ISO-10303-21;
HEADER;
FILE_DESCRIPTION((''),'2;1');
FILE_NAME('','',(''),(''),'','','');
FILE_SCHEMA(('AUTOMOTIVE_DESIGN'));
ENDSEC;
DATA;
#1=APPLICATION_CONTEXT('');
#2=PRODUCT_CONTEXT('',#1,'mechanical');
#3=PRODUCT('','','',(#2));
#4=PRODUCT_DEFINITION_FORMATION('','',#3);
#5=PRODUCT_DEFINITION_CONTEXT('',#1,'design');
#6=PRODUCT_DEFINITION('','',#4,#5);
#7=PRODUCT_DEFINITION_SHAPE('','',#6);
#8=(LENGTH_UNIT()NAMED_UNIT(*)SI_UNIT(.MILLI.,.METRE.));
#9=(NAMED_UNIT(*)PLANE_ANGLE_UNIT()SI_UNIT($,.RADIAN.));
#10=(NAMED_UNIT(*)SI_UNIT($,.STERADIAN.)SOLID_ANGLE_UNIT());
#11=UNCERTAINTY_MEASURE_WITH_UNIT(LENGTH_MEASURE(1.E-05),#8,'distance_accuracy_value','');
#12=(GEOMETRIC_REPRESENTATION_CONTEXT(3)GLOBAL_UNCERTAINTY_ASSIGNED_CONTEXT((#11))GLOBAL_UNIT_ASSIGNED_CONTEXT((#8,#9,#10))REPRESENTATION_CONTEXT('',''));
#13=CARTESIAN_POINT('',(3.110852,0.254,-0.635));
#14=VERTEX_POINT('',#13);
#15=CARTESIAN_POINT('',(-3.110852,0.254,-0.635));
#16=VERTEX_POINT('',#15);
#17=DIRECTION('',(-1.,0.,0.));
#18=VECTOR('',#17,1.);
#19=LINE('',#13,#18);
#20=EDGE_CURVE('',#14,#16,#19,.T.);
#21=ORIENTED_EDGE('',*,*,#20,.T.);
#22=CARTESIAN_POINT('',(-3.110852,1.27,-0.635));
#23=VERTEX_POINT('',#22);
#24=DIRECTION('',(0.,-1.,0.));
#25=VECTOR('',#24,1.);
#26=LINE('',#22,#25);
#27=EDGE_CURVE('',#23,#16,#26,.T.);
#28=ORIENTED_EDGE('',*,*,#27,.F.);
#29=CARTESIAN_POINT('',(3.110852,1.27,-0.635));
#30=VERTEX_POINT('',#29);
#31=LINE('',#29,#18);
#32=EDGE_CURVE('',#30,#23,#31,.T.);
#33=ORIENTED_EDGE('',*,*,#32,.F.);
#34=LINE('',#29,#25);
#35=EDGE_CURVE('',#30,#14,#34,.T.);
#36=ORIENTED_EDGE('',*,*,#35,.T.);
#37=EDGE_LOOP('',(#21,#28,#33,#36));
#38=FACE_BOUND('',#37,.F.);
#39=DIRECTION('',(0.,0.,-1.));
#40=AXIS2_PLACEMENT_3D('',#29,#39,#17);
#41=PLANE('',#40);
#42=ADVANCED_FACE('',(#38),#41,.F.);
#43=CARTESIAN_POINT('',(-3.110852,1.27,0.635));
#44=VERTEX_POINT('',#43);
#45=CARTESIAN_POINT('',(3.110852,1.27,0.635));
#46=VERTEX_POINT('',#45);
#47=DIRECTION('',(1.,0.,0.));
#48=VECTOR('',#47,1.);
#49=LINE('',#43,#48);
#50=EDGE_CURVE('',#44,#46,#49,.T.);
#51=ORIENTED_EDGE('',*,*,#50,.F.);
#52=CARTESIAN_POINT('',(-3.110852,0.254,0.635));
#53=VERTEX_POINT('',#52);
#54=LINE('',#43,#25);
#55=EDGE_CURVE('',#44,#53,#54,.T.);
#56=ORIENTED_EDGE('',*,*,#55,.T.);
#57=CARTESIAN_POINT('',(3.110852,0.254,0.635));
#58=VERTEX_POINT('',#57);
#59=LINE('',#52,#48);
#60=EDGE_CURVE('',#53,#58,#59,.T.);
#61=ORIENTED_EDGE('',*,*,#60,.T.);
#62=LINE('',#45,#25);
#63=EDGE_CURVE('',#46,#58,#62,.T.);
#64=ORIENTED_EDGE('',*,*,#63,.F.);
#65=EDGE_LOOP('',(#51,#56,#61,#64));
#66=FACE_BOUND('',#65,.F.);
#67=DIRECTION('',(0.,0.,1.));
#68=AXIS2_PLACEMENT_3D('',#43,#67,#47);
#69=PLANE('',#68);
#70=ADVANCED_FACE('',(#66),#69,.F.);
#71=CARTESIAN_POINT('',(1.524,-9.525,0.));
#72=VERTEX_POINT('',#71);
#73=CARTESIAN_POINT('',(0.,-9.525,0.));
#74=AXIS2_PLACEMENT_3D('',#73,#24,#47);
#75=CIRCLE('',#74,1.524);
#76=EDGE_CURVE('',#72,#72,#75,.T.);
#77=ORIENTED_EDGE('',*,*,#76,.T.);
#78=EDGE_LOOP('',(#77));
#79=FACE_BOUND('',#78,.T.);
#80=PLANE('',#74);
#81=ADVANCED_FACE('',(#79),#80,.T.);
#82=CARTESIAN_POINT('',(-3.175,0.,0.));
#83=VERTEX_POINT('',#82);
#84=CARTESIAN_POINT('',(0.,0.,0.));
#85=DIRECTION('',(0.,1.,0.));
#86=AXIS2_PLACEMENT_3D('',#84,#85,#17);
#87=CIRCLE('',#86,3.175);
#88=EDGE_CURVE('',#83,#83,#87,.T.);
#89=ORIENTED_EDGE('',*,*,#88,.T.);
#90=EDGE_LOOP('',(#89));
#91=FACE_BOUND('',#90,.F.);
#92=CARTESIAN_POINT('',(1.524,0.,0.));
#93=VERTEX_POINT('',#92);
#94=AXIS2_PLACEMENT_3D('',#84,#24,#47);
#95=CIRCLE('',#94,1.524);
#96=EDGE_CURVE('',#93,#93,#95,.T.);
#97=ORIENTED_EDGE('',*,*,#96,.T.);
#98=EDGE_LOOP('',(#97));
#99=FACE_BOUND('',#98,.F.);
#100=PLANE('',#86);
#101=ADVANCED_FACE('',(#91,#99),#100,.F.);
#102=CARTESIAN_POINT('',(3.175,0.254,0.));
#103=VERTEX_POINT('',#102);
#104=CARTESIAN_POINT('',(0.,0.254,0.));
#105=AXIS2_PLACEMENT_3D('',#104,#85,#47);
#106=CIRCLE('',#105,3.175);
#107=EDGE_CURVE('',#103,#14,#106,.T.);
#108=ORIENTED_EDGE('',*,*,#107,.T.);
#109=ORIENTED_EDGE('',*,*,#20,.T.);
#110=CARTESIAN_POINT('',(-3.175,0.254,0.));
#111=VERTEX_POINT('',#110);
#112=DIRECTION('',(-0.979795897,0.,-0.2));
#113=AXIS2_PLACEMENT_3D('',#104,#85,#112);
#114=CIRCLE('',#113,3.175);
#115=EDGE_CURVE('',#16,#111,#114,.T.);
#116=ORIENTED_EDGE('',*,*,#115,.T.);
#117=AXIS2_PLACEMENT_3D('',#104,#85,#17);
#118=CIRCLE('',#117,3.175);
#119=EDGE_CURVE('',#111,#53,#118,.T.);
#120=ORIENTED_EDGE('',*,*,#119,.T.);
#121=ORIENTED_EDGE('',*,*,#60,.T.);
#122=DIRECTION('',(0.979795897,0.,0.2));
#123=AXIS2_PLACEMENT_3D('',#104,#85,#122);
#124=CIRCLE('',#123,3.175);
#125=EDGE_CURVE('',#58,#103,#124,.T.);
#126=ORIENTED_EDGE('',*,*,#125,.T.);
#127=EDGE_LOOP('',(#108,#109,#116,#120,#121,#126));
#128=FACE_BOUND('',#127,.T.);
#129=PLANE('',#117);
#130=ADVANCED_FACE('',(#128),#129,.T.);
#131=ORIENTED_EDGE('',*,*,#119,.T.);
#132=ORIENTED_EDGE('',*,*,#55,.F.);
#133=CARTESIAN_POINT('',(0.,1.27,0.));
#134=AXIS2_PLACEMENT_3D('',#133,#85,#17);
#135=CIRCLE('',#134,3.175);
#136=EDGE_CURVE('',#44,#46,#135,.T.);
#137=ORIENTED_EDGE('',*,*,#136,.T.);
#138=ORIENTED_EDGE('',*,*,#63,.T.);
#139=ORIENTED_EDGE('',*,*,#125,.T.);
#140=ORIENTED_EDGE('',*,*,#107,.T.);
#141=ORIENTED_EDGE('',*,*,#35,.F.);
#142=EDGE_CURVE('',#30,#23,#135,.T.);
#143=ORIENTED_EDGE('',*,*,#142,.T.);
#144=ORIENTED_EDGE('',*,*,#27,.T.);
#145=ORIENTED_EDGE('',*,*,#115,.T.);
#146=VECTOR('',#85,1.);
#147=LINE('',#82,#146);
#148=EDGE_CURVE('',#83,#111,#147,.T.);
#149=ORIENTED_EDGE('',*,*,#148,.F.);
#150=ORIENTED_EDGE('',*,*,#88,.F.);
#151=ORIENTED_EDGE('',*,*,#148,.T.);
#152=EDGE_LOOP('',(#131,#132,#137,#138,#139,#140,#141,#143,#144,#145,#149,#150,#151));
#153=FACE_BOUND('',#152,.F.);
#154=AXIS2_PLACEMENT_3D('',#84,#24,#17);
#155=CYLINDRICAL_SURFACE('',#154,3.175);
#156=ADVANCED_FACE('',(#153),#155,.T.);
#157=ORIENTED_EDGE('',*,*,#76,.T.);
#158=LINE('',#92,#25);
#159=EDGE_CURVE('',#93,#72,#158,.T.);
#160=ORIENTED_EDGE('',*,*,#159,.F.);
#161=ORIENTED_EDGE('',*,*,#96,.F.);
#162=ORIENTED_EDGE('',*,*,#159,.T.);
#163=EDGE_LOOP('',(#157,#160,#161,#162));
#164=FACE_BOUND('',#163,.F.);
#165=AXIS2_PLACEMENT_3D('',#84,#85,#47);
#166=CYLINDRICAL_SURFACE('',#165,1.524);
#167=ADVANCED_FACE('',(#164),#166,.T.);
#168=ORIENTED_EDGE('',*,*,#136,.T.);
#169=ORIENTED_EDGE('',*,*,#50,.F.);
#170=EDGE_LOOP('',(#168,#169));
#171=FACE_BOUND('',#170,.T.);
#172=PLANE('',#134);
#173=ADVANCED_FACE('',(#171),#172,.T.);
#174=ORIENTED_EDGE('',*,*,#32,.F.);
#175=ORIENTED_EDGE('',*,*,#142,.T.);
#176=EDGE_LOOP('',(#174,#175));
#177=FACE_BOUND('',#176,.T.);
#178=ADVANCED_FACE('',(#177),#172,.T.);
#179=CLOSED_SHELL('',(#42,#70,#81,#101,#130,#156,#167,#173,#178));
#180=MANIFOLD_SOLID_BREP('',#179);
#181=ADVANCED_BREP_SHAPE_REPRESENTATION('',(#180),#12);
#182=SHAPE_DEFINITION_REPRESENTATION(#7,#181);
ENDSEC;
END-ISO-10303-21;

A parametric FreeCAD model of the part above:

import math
import FreeCAD as App
import Part
import Sketcher
from FreeCAD import Vector
Q = App.Units.Quantity

doc = App.newDocument("Part")
body = doc.addObject("PartDesign::Body", "Body")

sketch1 = doc.addObject("Sketcher::SketchObject", "Sketch")
body.addObject(sketch1)
sketch1.AttachmentSupport = (doc.XZ_Plane, [""])
sketch1.MapMode = "FlatFace"
sketch1.addGeometry(Part.Circle(Vector(0, 0, 0), Vector(0, 0, 1), 1.5), False)
sketch1.addConstraint([
    Sketcher.Constraint("Coincident", 0, 3, -1, 1),
    Sketcher.Constraint("Diameter", 0, Q("0.12 in")),
])
pad1 = doc.addObject("PartDesign::Pad", "Pad")
body.addObject(pad1)
pad1.Profile = sketch1
pad1.Length = Q("0.375 in")

sketch2 = doc.addObject("Sketcher::SketchObject", "Sketch001")
body.addObject(sketch2)
sketch2.AttachmentSupport = (doc.XZ_Plane, [""])
sketch2.MapMode = "FlatFace"
sketch2.addGeometry(Part.Circle(Vector(0, 0, 0), Vector(0, 0, 1), 3.2), False)
sketch2.addConstraint([
    Sketcher.Constraint("Coincident", 0, 3, -1, 1),
    Sketcher.Constraint("Diameter", 0, Q("0.25 in")),
])
pad2 = doc.addObject("PartDesign::Pad", "Pad001")
body.addObject(pad2)
pad2.Profile = sketch2
pad2.Length = Q("0.05 in")
pad2.Reversed = True

sketch3 = doc.addObject("Sketcher::SketchObject", "Sketch002")
body.addObject(sketch3)
sketch3.AttachmentSupport = (doc.XZ_Plane, [""])
sketch3.MapMode = "FlatFace"
sketch3.AttachmentOffset = App.Placement(Vector(0, 0, -0.05 * 25.4), App.Rotation())
sketch3.addGeometry([
    Part.ArcOfCircle(Part.Circle(Vector(0, 0, 0), Vector(0, 0, 1), 3.2), math.radians(168.46), math.radians(180)),
    Part.LineSegment(Vector(-3.1, 0.6, 0), Vector(3.1, 0.6, 0)),
    Part.ArcOfCircle(Part.Circle(Vector(0, 0, 0), Vector(0, 0, 1), 3.2), math.radians(0), math.radians(11.54)),
    Part.ArcOfCircle(Part.Circle(Vector(0, 0, 0), Vector(0, 0, 1), 3.2), math.radians(-11.54), math.radians(0)),
    Part.LineSegment(Vector(3.1, -0.6, 0), Vector(-3.1, -0.6, 0)),
    Part.ArcOfCircle(Part.Circle(Vector(0, 0, 0), Vector(0, 0, 1), 3.2), math.radians(180), math.radians(191.54)),
], False)
sketch3.addConstraint([
    Sketcher.Constraint("Coincident", 0, 1, 1, 1),
    Sketcher.Constraint("Coincident", 1, 2, 2, 2),
    Sketcher.Constraint("Tangent", 2, 1, 3, 2),
    Sketcher.Constraint("Coincident", 3, 1, 4, 1),
    Sketcher.Constraint("Coincident", 4, 2, 5, 2),
    Sketcher.Constraint("Tangent", 5, 1, 0, 2),
    Sketcher.Constraint("Horizontal", 1),
    Sketcher.Constraint("Horizontal", 4),
    Sketcher.Constraint("Coincident", 0, 3, -1, 1),
    Sketcher.Constraint("Coincident", 2, 3, -1, 1),
    Sketcher.Constraint("Equal", 0, 2),
    Sketcher.Constraint("Equal", 2, 3),
    Sketcher.Constraint("Equal", 3, 5),
    Sketcher.Constraint("PointOnObject", 2, 1, -1),
    Sketcher.Constraint("PointOnObject", 5, 1, -1),
    Sketcher.Constraint("Vertical", 1, 2, 3, 1),
    Sketcher.Constraint("Radius", 0, Q("0.125 in")),
    Sketcher.Constraint("DistanceY", 3, 1, 1, 2, Q("0.05 in")),
])
pocket1 = doc.addObject("PartDesign::Pocket", "Pocket")
body.addObject(pocket1)
pocket1.Profile = sketch3
pocket1.Length = Q("0.04 in")
pocket1.Reversed = True

doc.recompute()
